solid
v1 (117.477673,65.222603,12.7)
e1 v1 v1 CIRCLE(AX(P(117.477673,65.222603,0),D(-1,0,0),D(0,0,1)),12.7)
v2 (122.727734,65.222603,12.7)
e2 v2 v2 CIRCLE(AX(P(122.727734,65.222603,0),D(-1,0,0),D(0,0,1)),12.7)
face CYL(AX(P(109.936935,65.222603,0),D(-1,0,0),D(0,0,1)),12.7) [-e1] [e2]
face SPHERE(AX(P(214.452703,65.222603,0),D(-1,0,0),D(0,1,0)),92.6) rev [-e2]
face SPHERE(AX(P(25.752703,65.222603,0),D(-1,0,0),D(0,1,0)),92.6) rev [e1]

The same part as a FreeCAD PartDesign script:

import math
import FreeCAD as App
import Part
import Sketcher

V = App.Vector
Q = App.Units.Quantity

doc = App.newDocument("Part")
body = doc.addObject("PartDesign::Body", "Body")

sketch1 = doc.addObject("Sketcher::SketchObject", "Sketch")
body.addObject(sketch1)
sketch1.AttachmentSupport = (doc.XY_Plane, [""])
sketch1.MapMode = "FlatFace"
sketch1.addGeometry([
    Part.LineSegment(V(118.4, 65.2, 0), V(121.9, 65.2, 0)),
    Part.ArcOfCircle(Part.Circle(V(214.5, 65.2, 0), V(0, 0, 1), 92.6), math.radians(172.12), math.radians(180)),
    Part.LineSegment(V(122.7, 77.9, 0), V(117.5, 77.9, 0)),
    Part.ArcOfCircle(Part.Circle(V(25.8, 65.2, 0), V(0, 0, 1), 92.6), math.radians(0), math.radians(7.88)),
], False)
sketch1.addGeometry(Part.LineSegment(V(25.8, 65.2, 0), V(214.5, 65.2, 0)), True)
sketch1.addConstraint([
    Sketcher.Constraint("Coincident", 0, 2, 1, 2),
    Sketcher.Constraint("Coincident", 1, 1, 2, 1),
    Sketcher.Constraint("Coincident", 2, 2, 3, 2),
    Sketcher.Constraint("Coincident", 3, 1, 0, 1),
    Sketcher.Constraint("Horizontal", 0),
    Sketcher.Constraint("Horizontal", 2),
    Sketcher.Constraint("Horizontal", 4),
    Sketcher.Constraint("Coincident", 4, 1, 3, 3),
    Sketcher.Constraint("Coincident", 4, 2, 1, 3),
    Sketcher.Constraint("Equal", 1, 3),
    Sketcher.Constraint("Horizontal", 3, 3, 0, 2),
    Sketcher.Constraint("Radius", 1, Q("92.6 mm")),
    Sketcher.Constraint("DistanceX", 0, 1, 0, 2, Q("3.5 mm")),
    Sketcher.Constraint("DistanceY", 0, 2, 1, 1, Q("12.7 mm")),
    Sketcher.Constraint("DistanceX", -1, 1, 1, 3, Q("214.452703 mm")),
    Sketcher.Constraint("DistanceY", -1, 1, 1, 3, Q("65.222603 mm")),
])
revolution = doc.addObject("PartDesign::Revolution", "Revolution")
body.addObject(revolution)
revolution.Profile = sketch1
revolution.ReferenceAxis = (sketch1, ["Axis0"])
revolution.Angle = 360

doc.recompute()
